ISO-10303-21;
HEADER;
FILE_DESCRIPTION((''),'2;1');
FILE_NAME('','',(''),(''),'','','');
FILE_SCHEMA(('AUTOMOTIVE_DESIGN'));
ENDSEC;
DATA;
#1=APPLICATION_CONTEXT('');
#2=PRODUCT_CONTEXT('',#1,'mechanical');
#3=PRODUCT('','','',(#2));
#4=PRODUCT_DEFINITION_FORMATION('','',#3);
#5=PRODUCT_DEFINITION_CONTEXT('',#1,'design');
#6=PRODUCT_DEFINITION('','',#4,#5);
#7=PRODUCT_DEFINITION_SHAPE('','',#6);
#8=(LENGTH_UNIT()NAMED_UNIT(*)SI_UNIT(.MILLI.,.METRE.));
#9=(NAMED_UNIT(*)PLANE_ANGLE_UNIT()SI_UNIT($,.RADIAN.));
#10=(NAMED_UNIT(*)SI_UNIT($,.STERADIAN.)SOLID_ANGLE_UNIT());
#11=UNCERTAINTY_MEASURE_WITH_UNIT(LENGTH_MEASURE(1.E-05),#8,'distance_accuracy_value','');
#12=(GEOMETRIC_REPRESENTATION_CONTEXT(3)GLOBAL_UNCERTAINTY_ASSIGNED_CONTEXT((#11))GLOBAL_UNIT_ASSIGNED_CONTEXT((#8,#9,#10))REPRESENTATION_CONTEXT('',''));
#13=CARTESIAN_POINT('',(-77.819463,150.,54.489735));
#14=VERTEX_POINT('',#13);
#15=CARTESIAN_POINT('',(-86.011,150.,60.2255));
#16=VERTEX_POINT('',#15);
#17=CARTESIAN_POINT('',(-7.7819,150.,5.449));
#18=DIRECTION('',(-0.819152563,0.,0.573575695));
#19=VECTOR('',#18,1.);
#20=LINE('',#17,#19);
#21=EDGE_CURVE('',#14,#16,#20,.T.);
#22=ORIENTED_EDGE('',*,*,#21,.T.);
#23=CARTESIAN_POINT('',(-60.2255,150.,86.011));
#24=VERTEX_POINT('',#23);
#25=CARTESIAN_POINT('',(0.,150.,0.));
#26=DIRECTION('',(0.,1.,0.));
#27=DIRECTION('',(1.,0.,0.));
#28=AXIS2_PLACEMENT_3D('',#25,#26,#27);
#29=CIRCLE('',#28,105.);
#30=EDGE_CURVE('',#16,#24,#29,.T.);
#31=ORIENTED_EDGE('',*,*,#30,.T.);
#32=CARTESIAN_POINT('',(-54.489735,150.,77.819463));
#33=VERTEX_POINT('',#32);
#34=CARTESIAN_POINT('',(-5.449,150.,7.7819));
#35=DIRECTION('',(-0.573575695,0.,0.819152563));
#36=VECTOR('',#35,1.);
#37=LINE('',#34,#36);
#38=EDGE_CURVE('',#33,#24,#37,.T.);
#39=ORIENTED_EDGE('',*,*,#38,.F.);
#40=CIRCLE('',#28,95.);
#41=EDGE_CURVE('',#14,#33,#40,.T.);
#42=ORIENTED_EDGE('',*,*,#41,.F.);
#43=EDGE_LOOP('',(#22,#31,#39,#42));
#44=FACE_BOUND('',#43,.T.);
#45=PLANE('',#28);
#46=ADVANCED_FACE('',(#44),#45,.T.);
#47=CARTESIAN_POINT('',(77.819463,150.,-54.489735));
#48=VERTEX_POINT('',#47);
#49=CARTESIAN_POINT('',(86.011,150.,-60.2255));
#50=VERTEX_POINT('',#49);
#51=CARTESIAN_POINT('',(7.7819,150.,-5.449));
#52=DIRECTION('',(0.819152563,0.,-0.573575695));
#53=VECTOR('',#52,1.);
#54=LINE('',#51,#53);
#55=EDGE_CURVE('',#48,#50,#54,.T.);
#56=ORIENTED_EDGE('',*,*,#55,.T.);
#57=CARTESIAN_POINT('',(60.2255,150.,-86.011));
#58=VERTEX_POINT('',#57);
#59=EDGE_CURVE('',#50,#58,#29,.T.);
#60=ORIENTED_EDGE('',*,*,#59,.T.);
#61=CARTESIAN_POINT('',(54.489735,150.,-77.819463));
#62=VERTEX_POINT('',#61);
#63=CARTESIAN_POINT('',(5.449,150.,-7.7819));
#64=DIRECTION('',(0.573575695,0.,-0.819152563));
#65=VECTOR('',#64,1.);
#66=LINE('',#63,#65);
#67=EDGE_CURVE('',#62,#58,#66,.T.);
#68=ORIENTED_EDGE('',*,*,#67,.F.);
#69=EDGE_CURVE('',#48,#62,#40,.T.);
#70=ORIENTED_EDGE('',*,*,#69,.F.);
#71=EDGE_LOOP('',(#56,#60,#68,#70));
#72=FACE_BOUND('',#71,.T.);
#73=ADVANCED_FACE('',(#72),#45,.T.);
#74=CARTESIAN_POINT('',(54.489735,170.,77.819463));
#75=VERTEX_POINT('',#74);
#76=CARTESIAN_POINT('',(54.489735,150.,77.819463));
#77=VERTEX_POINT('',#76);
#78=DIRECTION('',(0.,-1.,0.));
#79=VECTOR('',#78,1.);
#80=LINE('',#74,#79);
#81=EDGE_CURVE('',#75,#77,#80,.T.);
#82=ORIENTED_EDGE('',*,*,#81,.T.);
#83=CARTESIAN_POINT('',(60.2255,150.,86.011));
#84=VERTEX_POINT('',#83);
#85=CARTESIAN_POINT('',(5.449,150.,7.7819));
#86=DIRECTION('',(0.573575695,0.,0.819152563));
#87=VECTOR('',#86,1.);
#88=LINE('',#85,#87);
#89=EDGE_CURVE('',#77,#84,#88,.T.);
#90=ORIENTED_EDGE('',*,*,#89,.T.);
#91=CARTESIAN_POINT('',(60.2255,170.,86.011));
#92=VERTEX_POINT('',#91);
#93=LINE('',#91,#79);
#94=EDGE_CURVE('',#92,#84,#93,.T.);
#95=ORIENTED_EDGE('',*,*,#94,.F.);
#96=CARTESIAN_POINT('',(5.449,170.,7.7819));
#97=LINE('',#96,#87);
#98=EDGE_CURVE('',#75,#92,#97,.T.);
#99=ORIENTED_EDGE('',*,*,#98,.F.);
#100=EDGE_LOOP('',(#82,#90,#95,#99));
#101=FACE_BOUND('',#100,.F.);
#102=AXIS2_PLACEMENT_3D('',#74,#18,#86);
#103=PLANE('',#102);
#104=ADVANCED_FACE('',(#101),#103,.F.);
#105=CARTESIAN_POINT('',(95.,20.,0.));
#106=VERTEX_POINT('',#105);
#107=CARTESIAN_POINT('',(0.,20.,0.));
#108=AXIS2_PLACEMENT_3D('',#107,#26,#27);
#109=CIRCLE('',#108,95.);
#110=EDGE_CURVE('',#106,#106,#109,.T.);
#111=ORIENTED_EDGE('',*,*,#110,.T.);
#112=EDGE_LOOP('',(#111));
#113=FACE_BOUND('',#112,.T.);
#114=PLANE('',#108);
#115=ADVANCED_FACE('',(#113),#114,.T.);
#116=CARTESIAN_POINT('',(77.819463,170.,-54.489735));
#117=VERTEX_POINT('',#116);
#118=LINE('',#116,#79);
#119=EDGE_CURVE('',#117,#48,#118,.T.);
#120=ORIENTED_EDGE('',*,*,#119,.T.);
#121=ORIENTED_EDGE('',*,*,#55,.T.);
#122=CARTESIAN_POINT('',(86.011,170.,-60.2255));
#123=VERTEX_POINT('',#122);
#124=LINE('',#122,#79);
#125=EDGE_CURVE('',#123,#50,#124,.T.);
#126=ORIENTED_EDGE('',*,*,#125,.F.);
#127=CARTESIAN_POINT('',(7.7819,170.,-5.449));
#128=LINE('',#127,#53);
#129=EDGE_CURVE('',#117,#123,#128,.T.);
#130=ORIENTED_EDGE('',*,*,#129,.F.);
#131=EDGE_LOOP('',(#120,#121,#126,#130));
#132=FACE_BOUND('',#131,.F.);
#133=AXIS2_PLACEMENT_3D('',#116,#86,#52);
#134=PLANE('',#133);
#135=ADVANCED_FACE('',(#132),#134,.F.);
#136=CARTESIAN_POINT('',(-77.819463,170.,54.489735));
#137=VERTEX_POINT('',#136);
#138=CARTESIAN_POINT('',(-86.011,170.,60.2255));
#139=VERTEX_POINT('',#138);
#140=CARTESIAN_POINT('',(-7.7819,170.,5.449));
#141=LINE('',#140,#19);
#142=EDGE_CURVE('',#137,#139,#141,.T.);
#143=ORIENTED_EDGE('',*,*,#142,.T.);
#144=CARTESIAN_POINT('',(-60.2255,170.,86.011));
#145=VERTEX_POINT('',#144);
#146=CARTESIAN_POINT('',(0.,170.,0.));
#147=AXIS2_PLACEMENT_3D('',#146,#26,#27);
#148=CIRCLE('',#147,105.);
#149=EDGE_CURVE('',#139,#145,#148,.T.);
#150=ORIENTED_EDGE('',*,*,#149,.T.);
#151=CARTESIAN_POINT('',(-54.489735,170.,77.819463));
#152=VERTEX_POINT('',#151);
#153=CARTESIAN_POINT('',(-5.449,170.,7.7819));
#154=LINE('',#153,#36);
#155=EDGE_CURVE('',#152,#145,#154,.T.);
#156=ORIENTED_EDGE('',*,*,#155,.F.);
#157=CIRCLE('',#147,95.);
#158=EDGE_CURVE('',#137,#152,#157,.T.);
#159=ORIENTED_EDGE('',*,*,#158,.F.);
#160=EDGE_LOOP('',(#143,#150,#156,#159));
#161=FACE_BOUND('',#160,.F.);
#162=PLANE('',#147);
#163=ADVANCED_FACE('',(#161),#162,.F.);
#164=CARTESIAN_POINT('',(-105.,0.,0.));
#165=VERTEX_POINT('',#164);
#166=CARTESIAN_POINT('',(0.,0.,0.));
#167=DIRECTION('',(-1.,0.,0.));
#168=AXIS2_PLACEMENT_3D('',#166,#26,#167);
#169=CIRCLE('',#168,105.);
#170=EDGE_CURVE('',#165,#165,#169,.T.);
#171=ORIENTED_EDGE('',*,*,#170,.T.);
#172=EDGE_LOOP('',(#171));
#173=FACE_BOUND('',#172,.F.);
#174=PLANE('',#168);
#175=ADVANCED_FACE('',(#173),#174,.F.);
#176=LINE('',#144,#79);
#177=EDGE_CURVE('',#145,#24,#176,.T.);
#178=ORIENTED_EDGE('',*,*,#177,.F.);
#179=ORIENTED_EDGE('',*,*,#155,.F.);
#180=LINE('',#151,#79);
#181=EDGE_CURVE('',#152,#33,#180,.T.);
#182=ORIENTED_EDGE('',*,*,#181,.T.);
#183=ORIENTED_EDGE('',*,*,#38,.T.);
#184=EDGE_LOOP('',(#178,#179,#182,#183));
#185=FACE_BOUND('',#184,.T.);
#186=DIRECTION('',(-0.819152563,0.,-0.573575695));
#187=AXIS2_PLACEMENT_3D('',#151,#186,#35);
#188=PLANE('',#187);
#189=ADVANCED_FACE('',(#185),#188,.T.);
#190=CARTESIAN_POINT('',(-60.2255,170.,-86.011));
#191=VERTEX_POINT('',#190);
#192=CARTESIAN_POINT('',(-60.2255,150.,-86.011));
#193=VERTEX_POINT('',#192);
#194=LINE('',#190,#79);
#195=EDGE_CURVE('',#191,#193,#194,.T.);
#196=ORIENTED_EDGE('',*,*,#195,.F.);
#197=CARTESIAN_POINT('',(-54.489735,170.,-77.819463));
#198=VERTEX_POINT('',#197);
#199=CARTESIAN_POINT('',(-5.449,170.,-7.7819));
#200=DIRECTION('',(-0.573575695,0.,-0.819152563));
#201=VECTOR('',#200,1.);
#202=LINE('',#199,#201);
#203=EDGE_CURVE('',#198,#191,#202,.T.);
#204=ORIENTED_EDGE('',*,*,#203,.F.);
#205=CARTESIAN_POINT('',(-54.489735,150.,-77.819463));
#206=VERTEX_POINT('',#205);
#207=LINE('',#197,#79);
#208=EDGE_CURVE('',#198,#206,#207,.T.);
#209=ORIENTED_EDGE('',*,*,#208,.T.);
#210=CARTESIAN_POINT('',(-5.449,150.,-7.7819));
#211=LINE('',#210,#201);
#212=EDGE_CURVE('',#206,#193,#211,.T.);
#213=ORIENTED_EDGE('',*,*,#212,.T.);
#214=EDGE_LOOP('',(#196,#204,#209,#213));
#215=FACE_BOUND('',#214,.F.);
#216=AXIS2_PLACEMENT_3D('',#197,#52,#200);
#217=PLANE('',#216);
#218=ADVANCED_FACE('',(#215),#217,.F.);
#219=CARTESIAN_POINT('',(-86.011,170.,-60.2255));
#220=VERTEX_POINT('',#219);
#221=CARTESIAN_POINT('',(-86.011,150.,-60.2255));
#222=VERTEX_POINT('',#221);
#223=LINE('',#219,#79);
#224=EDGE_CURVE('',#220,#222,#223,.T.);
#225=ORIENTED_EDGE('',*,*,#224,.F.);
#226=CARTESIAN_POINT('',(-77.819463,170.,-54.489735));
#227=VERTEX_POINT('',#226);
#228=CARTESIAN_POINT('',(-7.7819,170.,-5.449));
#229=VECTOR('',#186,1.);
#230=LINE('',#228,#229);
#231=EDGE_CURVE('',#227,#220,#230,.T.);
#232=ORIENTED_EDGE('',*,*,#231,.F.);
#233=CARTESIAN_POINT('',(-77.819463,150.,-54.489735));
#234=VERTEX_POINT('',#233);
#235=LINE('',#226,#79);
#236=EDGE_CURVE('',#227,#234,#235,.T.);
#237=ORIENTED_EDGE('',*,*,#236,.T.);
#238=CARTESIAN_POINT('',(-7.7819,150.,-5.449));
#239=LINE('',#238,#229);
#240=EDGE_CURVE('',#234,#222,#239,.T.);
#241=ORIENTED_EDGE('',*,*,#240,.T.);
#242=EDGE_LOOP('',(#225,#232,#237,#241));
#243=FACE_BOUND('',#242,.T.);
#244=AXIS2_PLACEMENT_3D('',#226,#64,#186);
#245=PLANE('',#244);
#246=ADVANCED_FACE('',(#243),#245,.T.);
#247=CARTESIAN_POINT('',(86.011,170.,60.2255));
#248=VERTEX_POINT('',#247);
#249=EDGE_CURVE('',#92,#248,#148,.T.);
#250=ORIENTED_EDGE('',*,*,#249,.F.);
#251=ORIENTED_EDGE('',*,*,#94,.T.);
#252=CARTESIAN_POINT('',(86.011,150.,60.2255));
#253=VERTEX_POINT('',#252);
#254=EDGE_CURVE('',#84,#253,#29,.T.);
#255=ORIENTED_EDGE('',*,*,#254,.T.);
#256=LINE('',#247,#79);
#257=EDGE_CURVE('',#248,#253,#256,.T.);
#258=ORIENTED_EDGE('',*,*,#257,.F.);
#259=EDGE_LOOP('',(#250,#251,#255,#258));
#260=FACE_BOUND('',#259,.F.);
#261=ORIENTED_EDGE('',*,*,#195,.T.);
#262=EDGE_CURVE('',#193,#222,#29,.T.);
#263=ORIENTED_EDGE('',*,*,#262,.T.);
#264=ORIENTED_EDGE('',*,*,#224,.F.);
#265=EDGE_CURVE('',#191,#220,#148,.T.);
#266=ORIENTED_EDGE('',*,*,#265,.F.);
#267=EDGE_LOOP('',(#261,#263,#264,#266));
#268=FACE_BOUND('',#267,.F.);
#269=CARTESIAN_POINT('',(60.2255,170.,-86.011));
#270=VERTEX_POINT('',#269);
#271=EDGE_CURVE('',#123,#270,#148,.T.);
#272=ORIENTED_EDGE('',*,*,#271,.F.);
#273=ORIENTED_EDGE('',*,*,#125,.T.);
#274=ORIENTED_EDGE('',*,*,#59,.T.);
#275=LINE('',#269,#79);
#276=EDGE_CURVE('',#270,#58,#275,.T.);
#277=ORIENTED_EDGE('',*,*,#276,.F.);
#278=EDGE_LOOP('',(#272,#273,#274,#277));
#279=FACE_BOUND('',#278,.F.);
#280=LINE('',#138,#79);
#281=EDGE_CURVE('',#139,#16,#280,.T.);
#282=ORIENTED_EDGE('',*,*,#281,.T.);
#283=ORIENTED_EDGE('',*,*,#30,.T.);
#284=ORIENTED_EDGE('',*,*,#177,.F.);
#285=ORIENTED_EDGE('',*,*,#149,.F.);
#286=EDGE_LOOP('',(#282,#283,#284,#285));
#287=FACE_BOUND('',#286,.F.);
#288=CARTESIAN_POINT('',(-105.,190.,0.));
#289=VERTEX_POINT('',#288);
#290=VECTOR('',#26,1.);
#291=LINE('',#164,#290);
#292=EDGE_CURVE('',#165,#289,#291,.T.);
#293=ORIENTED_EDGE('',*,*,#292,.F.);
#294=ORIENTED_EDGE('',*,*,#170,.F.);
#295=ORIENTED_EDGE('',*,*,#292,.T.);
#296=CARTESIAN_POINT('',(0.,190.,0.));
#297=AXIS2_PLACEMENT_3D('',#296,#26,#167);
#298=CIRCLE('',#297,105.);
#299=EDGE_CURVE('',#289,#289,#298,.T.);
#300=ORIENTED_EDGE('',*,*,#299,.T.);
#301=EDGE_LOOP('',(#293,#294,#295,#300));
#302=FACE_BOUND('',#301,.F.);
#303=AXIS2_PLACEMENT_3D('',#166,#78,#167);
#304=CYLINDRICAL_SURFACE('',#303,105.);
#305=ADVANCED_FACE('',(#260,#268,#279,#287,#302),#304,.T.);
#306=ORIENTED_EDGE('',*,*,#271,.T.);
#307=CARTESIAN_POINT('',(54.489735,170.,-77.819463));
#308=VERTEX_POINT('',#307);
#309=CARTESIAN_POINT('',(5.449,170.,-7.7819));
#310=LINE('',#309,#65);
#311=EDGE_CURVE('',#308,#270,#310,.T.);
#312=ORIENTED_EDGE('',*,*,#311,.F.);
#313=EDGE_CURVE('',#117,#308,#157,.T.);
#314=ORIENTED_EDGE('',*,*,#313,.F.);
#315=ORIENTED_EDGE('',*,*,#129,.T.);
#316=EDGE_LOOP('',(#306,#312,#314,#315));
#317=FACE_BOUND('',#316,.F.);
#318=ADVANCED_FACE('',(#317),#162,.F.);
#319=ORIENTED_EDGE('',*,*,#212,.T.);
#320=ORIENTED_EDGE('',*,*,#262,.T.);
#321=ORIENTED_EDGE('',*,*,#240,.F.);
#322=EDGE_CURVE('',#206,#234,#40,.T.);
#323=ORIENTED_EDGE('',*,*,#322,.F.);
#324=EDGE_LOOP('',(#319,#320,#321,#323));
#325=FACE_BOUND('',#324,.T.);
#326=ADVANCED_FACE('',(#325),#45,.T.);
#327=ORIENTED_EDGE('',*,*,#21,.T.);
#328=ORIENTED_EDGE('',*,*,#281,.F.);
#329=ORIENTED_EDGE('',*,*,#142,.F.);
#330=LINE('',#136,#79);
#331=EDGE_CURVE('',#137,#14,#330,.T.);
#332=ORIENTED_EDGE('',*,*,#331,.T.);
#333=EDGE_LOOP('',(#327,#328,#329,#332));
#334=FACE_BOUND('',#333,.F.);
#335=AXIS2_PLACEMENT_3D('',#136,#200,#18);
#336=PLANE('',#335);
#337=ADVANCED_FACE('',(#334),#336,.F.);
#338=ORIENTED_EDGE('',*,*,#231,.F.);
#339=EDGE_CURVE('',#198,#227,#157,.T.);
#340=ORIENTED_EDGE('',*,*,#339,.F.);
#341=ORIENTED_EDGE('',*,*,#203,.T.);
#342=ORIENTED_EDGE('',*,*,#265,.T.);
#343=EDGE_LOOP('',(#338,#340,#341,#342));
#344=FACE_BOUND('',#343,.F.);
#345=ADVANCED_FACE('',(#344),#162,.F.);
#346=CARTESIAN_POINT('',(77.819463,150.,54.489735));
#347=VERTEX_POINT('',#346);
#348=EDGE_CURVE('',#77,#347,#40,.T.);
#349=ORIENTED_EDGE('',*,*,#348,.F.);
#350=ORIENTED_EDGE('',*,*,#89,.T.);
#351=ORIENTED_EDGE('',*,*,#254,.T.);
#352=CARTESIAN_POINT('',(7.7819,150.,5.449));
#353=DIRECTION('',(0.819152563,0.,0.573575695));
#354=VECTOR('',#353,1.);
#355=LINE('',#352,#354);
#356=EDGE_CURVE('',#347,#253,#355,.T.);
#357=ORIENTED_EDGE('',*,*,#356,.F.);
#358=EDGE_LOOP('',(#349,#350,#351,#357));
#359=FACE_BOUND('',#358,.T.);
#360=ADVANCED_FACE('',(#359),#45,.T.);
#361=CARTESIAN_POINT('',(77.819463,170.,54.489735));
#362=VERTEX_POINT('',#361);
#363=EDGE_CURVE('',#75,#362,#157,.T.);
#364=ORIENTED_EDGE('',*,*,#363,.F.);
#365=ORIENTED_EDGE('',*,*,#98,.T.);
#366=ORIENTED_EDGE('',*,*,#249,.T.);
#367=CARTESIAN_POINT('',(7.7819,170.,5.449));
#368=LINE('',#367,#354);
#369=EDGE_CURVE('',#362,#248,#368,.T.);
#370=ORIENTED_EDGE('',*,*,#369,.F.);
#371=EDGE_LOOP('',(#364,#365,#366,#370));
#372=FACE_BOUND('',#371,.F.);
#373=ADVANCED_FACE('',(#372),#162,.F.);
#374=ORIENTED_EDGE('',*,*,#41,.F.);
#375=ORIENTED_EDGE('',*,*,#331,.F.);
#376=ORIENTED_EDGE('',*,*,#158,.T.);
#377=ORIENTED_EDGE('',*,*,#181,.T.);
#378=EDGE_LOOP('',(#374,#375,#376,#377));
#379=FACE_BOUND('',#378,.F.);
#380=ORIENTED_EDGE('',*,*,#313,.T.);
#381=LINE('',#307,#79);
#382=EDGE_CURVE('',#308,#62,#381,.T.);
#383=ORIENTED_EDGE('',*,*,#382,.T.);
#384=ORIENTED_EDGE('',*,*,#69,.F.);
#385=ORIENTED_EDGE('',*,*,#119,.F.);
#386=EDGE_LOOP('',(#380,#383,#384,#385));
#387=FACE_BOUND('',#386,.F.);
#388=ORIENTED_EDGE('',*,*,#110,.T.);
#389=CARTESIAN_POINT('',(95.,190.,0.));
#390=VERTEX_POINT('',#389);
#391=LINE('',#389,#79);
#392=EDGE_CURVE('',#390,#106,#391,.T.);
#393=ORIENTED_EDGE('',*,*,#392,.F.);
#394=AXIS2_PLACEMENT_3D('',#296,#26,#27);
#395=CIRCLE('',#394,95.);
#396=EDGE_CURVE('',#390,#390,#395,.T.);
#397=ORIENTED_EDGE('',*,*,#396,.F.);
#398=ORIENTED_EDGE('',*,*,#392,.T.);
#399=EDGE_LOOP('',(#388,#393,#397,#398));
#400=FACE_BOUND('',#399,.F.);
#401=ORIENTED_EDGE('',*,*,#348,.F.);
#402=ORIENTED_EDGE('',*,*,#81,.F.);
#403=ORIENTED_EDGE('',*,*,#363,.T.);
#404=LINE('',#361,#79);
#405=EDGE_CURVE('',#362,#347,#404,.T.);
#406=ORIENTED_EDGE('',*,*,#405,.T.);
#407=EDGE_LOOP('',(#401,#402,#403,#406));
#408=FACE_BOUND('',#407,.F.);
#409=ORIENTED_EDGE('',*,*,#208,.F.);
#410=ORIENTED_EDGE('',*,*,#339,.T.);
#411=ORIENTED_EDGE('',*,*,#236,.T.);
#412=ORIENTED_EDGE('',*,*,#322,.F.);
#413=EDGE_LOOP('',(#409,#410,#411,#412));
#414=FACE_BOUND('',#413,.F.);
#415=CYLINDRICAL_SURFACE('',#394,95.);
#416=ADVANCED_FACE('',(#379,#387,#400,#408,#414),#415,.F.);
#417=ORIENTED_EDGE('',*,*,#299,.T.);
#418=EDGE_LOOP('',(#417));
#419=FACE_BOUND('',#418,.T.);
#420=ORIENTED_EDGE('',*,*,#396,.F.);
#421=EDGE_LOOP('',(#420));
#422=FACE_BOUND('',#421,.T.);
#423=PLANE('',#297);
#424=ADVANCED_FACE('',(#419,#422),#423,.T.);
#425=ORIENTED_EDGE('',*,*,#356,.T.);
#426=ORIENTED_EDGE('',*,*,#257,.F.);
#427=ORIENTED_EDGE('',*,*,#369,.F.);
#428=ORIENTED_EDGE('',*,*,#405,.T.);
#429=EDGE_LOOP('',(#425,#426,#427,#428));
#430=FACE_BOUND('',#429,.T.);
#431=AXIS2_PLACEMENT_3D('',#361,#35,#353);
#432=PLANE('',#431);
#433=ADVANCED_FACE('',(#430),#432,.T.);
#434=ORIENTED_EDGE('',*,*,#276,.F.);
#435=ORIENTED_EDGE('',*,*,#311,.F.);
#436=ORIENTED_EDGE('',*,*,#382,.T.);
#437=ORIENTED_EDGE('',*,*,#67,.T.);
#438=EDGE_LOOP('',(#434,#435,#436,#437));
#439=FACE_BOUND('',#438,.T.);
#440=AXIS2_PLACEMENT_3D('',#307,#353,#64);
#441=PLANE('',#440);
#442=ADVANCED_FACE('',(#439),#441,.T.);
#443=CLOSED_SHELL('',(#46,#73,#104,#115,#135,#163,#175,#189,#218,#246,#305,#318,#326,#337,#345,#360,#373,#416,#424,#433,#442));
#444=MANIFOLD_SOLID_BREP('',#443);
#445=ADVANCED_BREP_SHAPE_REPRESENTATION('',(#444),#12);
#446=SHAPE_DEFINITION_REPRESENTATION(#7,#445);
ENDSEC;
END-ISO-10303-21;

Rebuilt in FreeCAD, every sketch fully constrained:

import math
import FreeCAD as App
import Part
import Sketcher

V = App.Vector
Q = App.Units.Quantity

doc = App.newDocument("Part")
body = doc.addObject("PartDesign::Body", "Body")

# Sketch on XZ plane
sketch1 = doc.addObject("Sketcher::SketchObject", "Sketch")
body.addObject(sketch1)
sketch1.AttachmentSupport = (doc.XZ_Plane, [""])
sketch1.MapMode = "FlatFace"
sketch1.addGeometry(Part.Circle(V(0, 0, 0), V(0, 0, 1), 105), False)
sketch1.addConstraint([
    Sketcher.Constraint("Coincident", 0, 3, -1, 1),
    Sketcher.Constraint("Diameter", 0, Q("210 mm")),
])
pad1 = doc.addObject("PartDesign::Pad", "Pad")
body.addObject(pad1)
pad1.Profile = sketch1
pad1.Length = 190
pad1.Reversed = True

# Sketch on XZ plane
sketch2 = doc.addObject("Sketcher::SketchObject", "Sketch001")
body.addObject(sketch2)
sketch2.AttachmentSupport = (doc.XZ_Plane, [""])
sketch2.MapMode = "FlatFace"
sketch2.AttachmentOffset = App.Placement(V(0, 0, -190), App.Rotation())
sketch2.addGeometry(Part.Circle(V(0, 0, 0), V(0, 0, 1), 95), False)
sketch2.addConstraint([
    Sketcher.Constraint("Coincident", 0, 3, -1, 1),
    Sketcher.Constraint("Diameter", 0, Q("190 mm")),
])
pocket1 = doc.addObject("PartDesign::Pocket", "Pocket")
body.addObject(pocket1)
pocket1.Profile = sketch2
pocket1.Length = 170
pocket1.Reversed = True

# Sketch on XZ plane
sketch3 = doc.addObject("Sketcher::SketchObject", "Sketch002")
body.addObject(sketch3)
sketch3.AttachmentSupport = (doc.XZ_Plane, [""])
sketch3.MapMode = "FlatFace"
sketch3.AttachmentOffset = App.Placement(V(0, 0, -170), App.Rotation())
sketch3.addGeometry([
    Part.ArcOfCircle(Part.Circle(V(0, 0, 0), V(0, 0, 1), 95), math.radians(-55), math.radians(-35)),  # 0
    Part.LineSegment(V(78, -54, 0), V(86, -60, 0)),  # 1
    Part.ArcOfCircle(Part.Circle(V(0, 0, 0), V(0, 0, 1), 105), math.radians(-55), math.radians(-35)),  # 2
    Part.LineSegment(V(60, -86, 0), V(54, -78, 0)),  # 3
    Part.LineSegment(V(86, 60, 0), V(78, 54, 0)),  # 4
    Part.ArcOfCircle(Part.Circle(V(0, 0, 0), V(0, 0, 1), 95), math.radians(35), math.radians(55)),  # 5
    Part.LineSegment(V(54, 78, 0), V(60, 86, 0)),  # 6
    Part.ArcOfCircle(Part.Circle(V(0, 0, 0), V(0, 0, 1), 105), math.radians(35), math.radians(55)),  # 7
    Part.ArcOfCircle(Part.Circle(V(0, 0, 0), V(0, 0, 1), 95), math.radians(-145), math.radians(-125)),  # 8
    Part.LineSegment(V(-54, -78, 0), V(-60, -86, 0)),  # 9
    Part.ArcOfCircle(Part.Circle(V(0, 0, 0), V(0, 0, 1), 105), math.radians(-145), math.radians(-125)),  # 10
    Part.LineSegment(V(-86, -60, 0), V(-78, -54, 0)),  # 11
    Part.LineSegment(V(-60, 86, 0), V(-54, 78, 0)),  # 12
    Part.ArcOfCircle(Part.Circle(V(0, 0, 0), V(0, 0, 1), 95), math.radians(125), math.radians(145)),  # 13
    Part.LineSegment(V(-78, 54, 0), V(-86, 60, 0)),  # 14
    Part.ArcOfCircle(Part.Circle(V(0, 0, 0), V(0, 0, 1), 105), math.radians(125), math.radians(145)),  # 15
], False)
sketch3.addConstraint([
    Sketcher.Constraint("Coincident", 0, 2, 1, 1),
    Sketcher.Constraint("Coincident", 1, 2, 2, 2),
    Sketcher.Constraint("Coincident", 2, 1, 3, 1),
    Sketcher.Constraint("Coincident", 3, 2, 0, 1),
    Sketcher.Constraint("Coincident", 4, 2, 5, 1),
    Sketcher.Constraint("Coincident", 5, 2, 6, 1),
    Sketcher.Constraint("Coincident", 6, 2, 7, 2),
    Sketcher.Constraint("Coincident", 7, 1, 4, 1),
    Sketcher.Constraint("Coincident", 8, 2, 9, 1),
    Sketcher.Constraint("Coincident", 9, 2, 10, 2),
    Sketcher.Constraint("Coincident", 10, 1, 11, 1),
    Sketcher.Constraint("Coincident", 11, 2, 8, 1),
    Sketcher.Constraint("Coincident", 12, 2, 13, 1),
    Sketcher.Constraint("Coincident", 13, 2, 14, 1),
    Sketcher.Constraint("Coincident", 14, 2, 15, 2),
    Sketcher.Constraint("Coincident", 15, 1, 12, 1),
    Sketcher.Constraint("Coincident", 0, 3, -1, 1),
    Sketcher.Constraint("Coincident", 2, 3, -1, 1),
    Sketcher.Constraint("Coincident", 5, 3, -1, 1),
    Sketcher.Constraint("Coincident", 7, 3, -1, 1),
    Sketcher.Constraint("Coincident", 8, 3, -1, 1),
    Sketcher.Constraint("Coincident", 10, 3, -1, 1),
    Sketcher.Constraint("Coincident", 13, 3, -1, 1),
    Sketcher.Constraint("Coincident", 15, 3, -1, 1),
    Sketcher.Constraint("Equal", 0, 5),
    Sketcher.Constraint("Equal", 2, 7),
    Sketcher.Constraint("Equal", 5, 8),
    Sketcher.Constraint("Equal", 7, 10),
    Sketcher.Constraint("Equal", 8, 13),
    Sketcher.Constraint("Equal", 10, 15),
    Sketcher.Constraint("Perpendicular", 3, 4),
    Sketcher.Constraint("Perpendicular", 1, 6),
    Sketcher.Constraint("Parallel", 6, 9),
    Sketcher.Constraint("Parallel", 4, 11),
    Sketcher.Constraint("Perpendicular", 11, 12),
    Sketcher.Constraint("Perpendicular", 9, 14),
    Sketcher.Constraint("Horizontal", 3, 2, 8, 2),
    Sketcher.Constraint("Horizontal", 2, 1, 9, 2),
    Sketcher.Constraint("Horizontal", 1, 2, 10, 1),
    Sketcher.Constraint("Horizontal", 5, 2, 12, 2),
    Sketcher.Constraint("Horizontal", 4, 2, 13, 2),
    Sketcher.Constraint("Vertical", 0, 2, 4, 2),
    Sketcher.Constraint("Vertical", 3, 2, 5, 2),
    Sketcher.Constraint("Angle", 1, Q("-35 deg")),
    Sketcher.Constraint("Radius", 0, Q("95 mm")),
    Sketcher.Constraint("Radius", 2, Q("105 mm")),
    Sketcher.Constraint("DistanceX", -1, 1, 1, 2, Q("86.011 mm")),
    Sketcher.Constraint("DistanceY", 2, 1, -1, 1, Q("86.011 mm")),
])
pocket2 = doc.addObject("PartDesign::Pocket", "Pocket001")
body.addObject(pocket2)
pocket2.Profile = sketch3
pocket2.Length = 20
pocket2.Reversed = True

doc.recompute()
